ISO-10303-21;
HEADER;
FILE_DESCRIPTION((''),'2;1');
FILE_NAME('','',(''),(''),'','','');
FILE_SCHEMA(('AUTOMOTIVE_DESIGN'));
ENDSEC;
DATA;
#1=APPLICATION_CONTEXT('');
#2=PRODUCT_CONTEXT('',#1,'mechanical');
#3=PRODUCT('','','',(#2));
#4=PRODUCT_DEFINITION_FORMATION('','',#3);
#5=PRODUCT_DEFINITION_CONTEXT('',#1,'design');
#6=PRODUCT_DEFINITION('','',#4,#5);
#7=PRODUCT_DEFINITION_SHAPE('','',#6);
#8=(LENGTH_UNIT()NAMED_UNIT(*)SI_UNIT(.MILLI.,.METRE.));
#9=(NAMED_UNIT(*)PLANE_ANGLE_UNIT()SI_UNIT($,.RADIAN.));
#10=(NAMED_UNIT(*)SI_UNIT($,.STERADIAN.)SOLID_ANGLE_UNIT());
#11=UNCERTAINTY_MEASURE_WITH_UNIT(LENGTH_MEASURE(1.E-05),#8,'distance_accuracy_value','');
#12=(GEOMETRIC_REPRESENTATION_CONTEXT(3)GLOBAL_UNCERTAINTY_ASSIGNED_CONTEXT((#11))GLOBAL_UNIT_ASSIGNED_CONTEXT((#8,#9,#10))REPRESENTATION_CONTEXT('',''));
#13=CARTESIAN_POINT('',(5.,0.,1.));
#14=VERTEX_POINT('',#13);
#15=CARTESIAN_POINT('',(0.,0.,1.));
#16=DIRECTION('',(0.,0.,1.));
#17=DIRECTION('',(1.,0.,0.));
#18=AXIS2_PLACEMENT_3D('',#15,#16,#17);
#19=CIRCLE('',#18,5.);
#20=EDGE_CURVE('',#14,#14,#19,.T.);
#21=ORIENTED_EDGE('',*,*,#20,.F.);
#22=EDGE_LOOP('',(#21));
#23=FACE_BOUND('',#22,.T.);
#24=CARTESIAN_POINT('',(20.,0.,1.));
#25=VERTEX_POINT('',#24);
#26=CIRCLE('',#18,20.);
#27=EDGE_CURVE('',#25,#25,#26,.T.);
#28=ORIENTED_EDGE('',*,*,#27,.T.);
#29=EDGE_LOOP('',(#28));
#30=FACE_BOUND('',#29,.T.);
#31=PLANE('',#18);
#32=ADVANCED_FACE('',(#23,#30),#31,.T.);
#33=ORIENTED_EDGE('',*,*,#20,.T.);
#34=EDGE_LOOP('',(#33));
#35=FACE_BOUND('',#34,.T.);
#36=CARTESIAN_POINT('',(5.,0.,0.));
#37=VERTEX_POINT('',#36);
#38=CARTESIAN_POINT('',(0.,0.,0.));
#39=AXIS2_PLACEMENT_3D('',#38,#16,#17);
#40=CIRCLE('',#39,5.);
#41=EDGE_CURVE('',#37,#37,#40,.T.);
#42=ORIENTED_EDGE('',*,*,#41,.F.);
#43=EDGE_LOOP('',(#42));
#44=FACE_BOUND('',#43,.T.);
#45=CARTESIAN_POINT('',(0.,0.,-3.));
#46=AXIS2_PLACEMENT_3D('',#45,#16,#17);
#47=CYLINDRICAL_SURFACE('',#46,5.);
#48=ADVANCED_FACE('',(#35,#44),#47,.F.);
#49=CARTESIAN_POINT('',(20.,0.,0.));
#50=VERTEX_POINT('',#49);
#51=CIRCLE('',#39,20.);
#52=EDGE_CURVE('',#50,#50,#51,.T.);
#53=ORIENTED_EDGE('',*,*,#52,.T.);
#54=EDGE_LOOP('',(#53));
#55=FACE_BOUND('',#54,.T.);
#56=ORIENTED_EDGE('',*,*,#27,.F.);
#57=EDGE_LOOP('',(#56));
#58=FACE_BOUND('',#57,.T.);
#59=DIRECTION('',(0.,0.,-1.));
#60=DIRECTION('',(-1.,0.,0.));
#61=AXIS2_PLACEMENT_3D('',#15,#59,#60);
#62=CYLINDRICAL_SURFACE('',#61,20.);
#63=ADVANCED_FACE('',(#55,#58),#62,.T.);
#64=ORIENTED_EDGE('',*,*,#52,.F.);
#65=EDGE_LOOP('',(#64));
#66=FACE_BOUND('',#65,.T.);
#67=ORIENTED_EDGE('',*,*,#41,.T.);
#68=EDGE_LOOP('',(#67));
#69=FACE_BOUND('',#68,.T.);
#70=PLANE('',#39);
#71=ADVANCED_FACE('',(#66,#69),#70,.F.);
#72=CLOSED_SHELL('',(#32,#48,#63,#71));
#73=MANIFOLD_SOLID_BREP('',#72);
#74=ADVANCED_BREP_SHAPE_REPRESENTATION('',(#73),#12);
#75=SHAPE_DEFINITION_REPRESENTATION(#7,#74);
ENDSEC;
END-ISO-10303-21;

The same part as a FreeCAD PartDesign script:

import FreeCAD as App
import Part
import Sketcher

doc = App.newDocument("Part")
params = doc.addObject("Spreadsheet::Sheet", "Params")
for row, (alias, value) in enumerate([
    ("sketch1_diameter", "40 mm"),
    ("pad1_length", "1 mm"),
    ("sketch2_diameter", "10 mm"),
    ("pocket1_length", "4 mm"),
], start=1):
    params.set(f"A{row}", alias)
    params.set(f"B{row}", "=" + value)
    params.setAlias(f"B{row}", alias)

body = doc.addObject("PartDesign::Body", "Body")

# Sketch on XY plane
sketch1 = doc.addObject("Sketcher::SketchObject", "Sketch")
body.addObject(sketch1)
sketch1.AttachmentSupport = (doc.XY_Plane, [""])
sketch1.MapMode = "FlatFace"
sketch1.addGeometry(Part.Circle(App.Vector(0, 0, 0), App.Vector(0, 0, 1), 20), False)
sketch1.addConstraint([
    Sketcher.Constraint("Coincident", 0, 3, -1, 1),
    Sketcher.Constraint("Diameter", 0, 40.0),
])
sketch1.setExpression("Constraints[1]", "Params.sketch1_diameter")
pad1 = doc.addObject("PartDesign::Pad", "Pad")
body.addObject(pad1)
pad1.Profile = sketch1
pad1.setExpression("Length", "Params.pad1_length")

# Sketch on XY plane
sketch2 = doc.addObject("Sketcher::SketchObject", "Sketch001")
body.addObject(sketch2)
sketch2.AttachmentSupport = (doc.XY_Plane, [""])
sketch2.MapMode = "FlatFace"
sketch2.AttachmentOffset = App.Placement(App.Vector(0, 0, 1), App.Rotation())
sketch2.addGeometry(Part.Circle(App.Vector(0, 0, 0), App.Vector(0, 0, 1), 5), False)
sketch2.addConstraint([
    Sketcher.Constraint("Coincident", 0, 3, -1, 1),
    Sketcher.Constraint("Diameter", 0, 10.0),
])
sketch2.setExpression("Constraints[1]", "Params.sketch2_diameter")
pocket1 = doc.addObject("PartDesign::Pocket", "Pocket")
body.addObject(pocket1)
pocket1.Profile = sketch2
pocket1.setExpression("Length", "Params.pocket1_length")

doc.recompute()
